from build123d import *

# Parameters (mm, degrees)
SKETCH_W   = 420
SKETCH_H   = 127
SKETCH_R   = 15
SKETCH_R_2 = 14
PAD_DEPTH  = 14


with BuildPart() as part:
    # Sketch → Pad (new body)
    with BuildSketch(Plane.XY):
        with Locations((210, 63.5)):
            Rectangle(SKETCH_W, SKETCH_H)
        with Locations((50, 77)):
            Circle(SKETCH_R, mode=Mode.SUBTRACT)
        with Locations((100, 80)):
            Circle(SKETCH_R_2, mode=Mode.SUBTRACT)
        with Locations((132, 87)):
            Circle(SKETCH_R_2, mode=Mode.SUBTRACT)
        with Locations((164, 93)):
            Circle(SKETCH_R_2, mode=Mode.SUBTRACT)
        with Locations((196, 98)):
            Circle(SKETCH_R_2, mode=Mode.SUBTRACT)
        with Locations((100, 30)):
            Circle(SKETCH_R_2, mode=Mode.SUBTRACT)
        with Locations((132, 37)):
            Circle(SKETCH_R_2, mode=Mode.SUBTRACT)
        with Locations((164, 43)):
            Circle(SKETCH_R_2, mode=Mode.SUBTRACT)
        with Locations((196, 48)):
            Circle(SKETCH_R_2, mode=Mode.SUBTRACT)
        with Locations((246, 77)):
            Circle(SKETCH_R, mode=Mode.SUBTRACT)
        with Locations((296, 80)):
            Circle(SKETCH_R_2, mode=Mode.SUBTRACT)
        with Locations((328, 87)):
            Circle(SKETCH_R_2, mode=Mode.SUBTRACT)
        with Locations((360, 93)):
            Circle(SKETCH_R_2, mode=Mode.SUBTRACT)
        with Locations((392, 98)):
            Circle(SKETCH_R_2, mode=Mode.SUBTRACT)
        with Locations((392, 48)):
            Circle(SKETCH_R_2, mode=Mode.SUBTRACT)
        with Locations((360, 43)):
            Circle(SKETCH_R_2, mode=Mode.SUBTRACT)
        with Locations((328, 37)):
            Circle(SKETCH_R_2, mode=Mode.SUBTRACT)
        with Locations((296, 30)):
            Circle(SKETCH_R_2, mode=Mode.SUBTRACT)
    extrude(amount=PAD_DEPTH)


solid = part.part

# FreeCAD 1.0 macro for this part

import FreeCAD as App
import Part
import Sketcher

V = App.Vector


def add_polygon(sketch, points):
    """Adds a closed chain of lines whose ends are joined by coincident constraints."""
    first, n = sketch.GeometryCount, len(points)
    for a, b in zip(points, points[1:] + points[:1]):
        sketch.addGeometry(Part.LineSegment(App.Vector(*a, 0), App.Vector(*b, 0)), False)
    for i in range(n):
        sketch.addConstraint(Sketcher.Constraint("Coincident", first + i, 2, first + (i + 1) % n, 1))

doc = App.newDocument("Part")
body = doc.addObject("PartDesign::Body", "Body")

sketch1 = body.newObject("Sketcher::SketchObject", "Sketch")
sketch1.AttachmentSupport = (doc.getObject("XY_Plane"), [""])
sketch1.MapMode = "FlatFace"
add_polygon(sketch1, [(0, 127), (0, 0), (420, 0), (420, 127)])
sketch1.addGeometry(Part.Circle(V(100, 30, 0), V(0, 0, 1), 14), False)
sketch1.addGeometry(Part.Circle(V(132, 37, 0), V(0, 0, 1), 14), False)
sketch1.addGeometry(Part.Circle(V(164, 43, 0), V(0, 0, 1), 14), False)
sketch1.addGeometry(Part.Circle(V(196, 48, 0), V(0, 0, 1), 14), False)
sketch1.addGeometry(Part.Circle(V(296, 30, 0), V(0, 0, 1), 14), False)
sketch1.addGeometry(Part.Circle(V(328, 37, 0), V(0, 0, 1), 14), False)
sketch1.addGeometry(Part.Circle(V(360, 43, 0), V(0, 0, 1), 14), False)
sketch1.addGeometry(Part.Circle(V(392, 48, 0), V(0, 0, 1), 14), False)
sketch1.addGeometry(Part.Circle(V(50, 77, 0), V(0, 0, 1), 15), False)
sketch1.addGeometry(Part.Circle(V(100, 80, 0), V(0, 0, 1), 14), False)
sketch1.addGeometry(Part.Circle(V(132, 87, 0), V(0, 0, 1), 14), False)
sketch1.addGeometry(Part.Circle(V(164, 93, 0), V(0, 0, 1), 14), False)
sketch1.addGeometry(Part.Circle(V(196, 98, 0), V(0, 0, 1), 14), False)
sketch1.addGeometry(Part.Circle(V(246, 77, 0), V(0, 0, 1), 15), False)
sketch1.addGeometry(Part.Circle(V(296, 80, 0), V(0, 0, 1), 14), False)
sketch1.addGeometry(Part.Circle(V(328, 87, 0), V(0, 0, 1), 14), False)
sketch1.addGeometry(Part.Circle(V(360, 93, 0), V(0, 0, 1), 14), False)
sketch1.addGeometry(Part.Circle(V(392, 98, 0), V(0, 0, 1), 14), False)
sketch1.addConstraint(Sketcher.Constraint("Vertical", 0))
sketch1.addConstraint(Sketcher.Constraint("Horizontal", 1))
sketch1.addConstraint(Sketcher.Constraint("Vertical", 2))
sketch1.addConstraint(Sketcher.Constraint("Horizontal", 3))
sketch1.addConstraint(Sketcher.Constraint("Coincident", 0, 2, -1, 1))
sketch1.addConstraint(Sketcher.Constraint("Equal", 4, 5))
sketch1.addConstraint(Sketcher.Constraint("Equal", 5, 6))
sketch1.addConstraint(Sketcher.Constraint("Equal", 6, 7))
sketch1.addConstraint(Sketcher.Constraint("Equal", 7, 8))
sketch1.addConstraint(Sketcher.Constraint("Equal", 8, 9))
sketch1.addConstraint(Sketcher.Constraint("Equal", 9, 10))
sketch1.addConstraint(Sketcher.Constraint("Equal", 10, 11))
sketch1.addConstraint(Sketcher.Constraint("Equal", 11, 13))
sketch1.addConstraint(Sketcher.Constraint("Equal", 13, 14))
sketch1.addConstraint(Sketcher.Constraint("Equal", 14, 15))
sketch1.addConstraint(Sketcher.Constraint("Equal", 15, 16))
sketch1.addConstraint(Sketcher.Constraint("Equal", 12, 17))
sketch1.addConstraint(Sketcher.Constraint("Equal", 16, 18))
sketch1.addConstraint(Sketcher.Constraint("Equal", 18, 19))
sketch1.addConstraint(Sketcher.Constraint("Equal", 19, 20))
sketch1.addConstraint(Sketcher.Constraint("Equal", 20, 21))
sketch1.addConstraint(Sketcher.Constraint("Horizontal", 4, 3, 8, 3))
sketch1.addConstraint(Sketcher.Constraint("Horizontal", 5, 3, 9, 3))
sketch1.addConstraint(Sketcher.Constraint("Horizontal", 6, 3, 10, 3))
sketch1.addConstraint(Sketcher.Constraint("Horizontal", 7, 3, 11, 3))
sketch1.addConstraint(Sketcher.Constraint("Horizontal", 12, 3, 17, 3))
sketch1.addConstraint(Sketcher.Constraint("Horizontal", 13, 3, 18, 3))
sketch1.addConstraint(Sketcher.Constraint("Horizontal", 14, 3, 19, 3))
sketch1.addConstraint(Sketcher.Constraint("Horizontal", 15, 3, 20, 3))
sketch1.addConstraint(Sketcher.Constraint("Horizontal", 16, 3, 21, 3))
sketch1.addConstraint(Sketcher.Constraint("Vertical", 4, 3, 13, 3))
sketch1.addConstraint(Sketcher.Constraint("Vertical", 5, 3, 14, 3))
sketch1.addConstraint(Sketcher.Constraint("Vertical", 6, 3, 15, 3))
sketch1.addConstraint(Sketcher.Constraint("Vertical", 7, 3, 16, 3))
sketch1.addConstraint(Sketcher.Constraint("Vertical", 8, 3, 18, 3))
sketch1.addConstraint(Sketcher.Constraint("Vertical", 9, 3, 19, 3))
sketch1.addConstraint(Sketcher.Constraint("Vertical", 10, 3, 20, 3))
sketch1.addConstraint(Sketcher.Constraint("Vertical", 11, 3, 21, 3))
sketch1.addConstraint(Sketcher.Constraint("Diameter", 4, 28.0))
sketch1.addConstraint(Sketcher.Constraint("Diameter", 12, 30.0))
sketch1.addConstraint(Sketcher.Constraint("DistanceX", 1, 1, 1, 2, 420.0))
sketch1.addConstraint(Sketcher.Constraint("DistanceY", 0, 2, 0, 1, 127.0))
sketch1.addConstraint(Sketcher.Constraint("DistanceX", -1, 1, 4, 3, 100.0))
sketch1.addConstraint(Sketcher.Constraint("DistanceY", -1, 1, 4, 3, 30.0))
sketch1.addConstraint(Sketcher.Constraint("DistanceX", -1, 1, 5, 3, 132.0))
sketch1.addConstraint(Sketcher.Constraint("DistanceY", -1, 1, 5, 3, 37.0))
sketch1.addConstraint(Sketcher.Constraint("DistanceX", -1, 1, 6, 3, 164.0))
sketch1.addConstraint(Sketcher.Constraint("DistanceY", -1, 1, 6, 3, 43.0))
sketch1.addConstraint(Sketcher.Constraint("DistanceX", -1, 1, 7, 3, 196.0))
sketch1.addConstraint(Sketcher.Constraint("DistanceY", -1, 1, 7, 3, 48.0))
sketch1.addConstraint(Sketcher.Constraint("DistanceX", -1, 1, 8, 3, 296.0))
sketch1.addConstraint(Sketcher.Constraint("DistanceX", -1, 1, 9, 3, 328.0))
sketch1.addConstraint(Sketcher.Constraint("DistanceX", -1, 1, 10, 3, 360.0))
sketch1.addConstraint(Sketcher.Constraint("DistanceX", -1, 1, 11, 3, 392.0))
sketch1.addConstraint(Sketcher.Constraint("DistanceX", -1, 1, 12, 3, 50.0))
sketch1.addConstraint(Sketcher.Constraint("DistanceY", -1, 1, 12, 3, 77.0))
sketch1.addConstraint(Sketcher.Constraint("DistanceY", -1, 1, 13, 3, 80.0))
sketch1.addConstraint(Sketcher.Constraint("DistanceY", -1, 1, 14, 3, 87.0))
sketch1.addConstraint(Sketcher.Constraint("DistanceY", -1, 1, 15, 3, 93.0))
sketch1.addConstraint(Sketcher.Constraint("DistanceY", -1, 1, 16, 3, 98.0))
sketch1.addConstraint(Sketcher.Constraint("DistanceX", -1, 1, 17, 3, 246.0))
pad1 = body.newObject("PartDesign::Pad", "Pad")
pad1.Profile = sketch1
pad1.Length = 14

doc.recompute()
